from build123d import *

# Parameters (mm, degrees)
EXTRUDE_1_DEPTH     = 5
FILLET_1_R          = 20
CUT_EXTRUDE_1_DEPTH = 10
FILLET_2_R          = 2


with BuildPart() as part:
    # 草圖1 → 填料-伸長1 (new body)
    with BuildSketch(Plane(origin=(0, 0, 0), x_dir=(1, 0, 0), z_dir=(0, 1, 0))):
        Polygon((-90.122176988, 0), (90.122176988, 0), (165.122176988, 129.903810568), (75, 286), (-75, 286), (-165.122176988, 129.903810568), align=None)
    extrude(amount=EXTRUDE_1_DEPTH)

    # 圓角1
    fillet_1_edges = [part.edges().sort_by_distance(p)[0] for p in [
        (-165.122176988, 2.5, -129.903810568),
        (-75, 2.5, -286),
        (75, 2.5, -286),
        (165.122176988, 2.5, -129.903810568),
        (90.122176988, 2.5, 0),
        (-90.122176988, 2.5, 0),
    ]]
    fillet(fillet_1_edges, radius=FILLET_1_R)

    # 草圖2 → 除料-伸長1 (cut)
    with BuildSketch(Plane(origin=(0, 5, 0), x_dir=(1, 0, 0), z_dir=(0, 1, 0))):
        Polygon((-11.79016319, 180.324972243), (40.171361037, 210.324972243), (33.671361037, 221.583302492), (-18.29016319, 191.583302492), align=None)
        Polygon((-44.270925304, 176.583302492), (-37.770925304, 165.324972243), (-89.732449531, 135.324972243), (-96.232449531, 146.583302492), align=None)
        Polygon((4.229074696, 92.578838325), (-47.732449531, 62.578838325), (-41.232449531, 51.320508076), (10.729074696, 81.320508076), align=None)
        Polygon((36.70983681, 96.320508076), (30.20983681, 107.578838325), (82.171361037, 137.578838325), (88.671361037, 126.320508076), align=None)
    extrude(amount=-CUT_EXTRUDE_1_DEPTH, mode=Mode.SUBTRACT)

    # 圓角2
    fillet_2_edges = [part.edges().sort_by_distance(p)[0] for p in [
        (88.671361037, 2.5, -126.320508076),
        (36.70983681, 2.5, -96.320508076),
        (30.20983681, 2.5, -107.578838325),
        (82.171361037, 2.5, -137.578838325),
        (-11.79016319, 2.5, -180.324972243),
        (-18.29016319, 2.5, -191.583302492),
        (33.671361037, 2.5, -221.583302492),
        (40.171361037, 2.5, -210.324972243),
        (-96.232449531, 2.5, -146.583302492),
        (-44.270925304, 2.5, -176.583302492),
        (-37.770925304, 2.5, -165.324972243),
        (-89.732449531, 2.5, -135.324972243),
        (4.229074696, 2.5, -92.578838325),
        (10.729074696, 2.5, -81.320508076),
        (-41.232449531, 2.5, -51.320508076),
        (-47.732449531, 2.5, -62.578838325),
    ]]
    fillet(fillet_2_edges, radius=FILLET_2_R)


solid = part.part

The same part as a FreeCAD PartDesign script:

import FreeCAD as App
import Part
import Sketcher
from FreeCAD import Vector
Q = App.Units.Quantity


def edges_at(feature, points):
    """Names of the edges that pass closest to the given points."""
    edges = feature.Shape.Edges
    near = lambda p: min(range(len(edges)), key=lambda i: edges[i].distToShape(Part.Vertex(*p))[0])
    return sorted({f"Edge{near(p) + 1}" for p in points})

doc = App.newDocument("Part")
body = doc.addObject("PartDesign::Body", "Body")

# Sketch on XZ plane
sketch1 = body.newObject("Sketcher::SketchObject", "Sketch")
sketch1.AttachmentSupport = (doc.getObject("XZ_Plane"), [""])
sketch1.MapMode = "FlatFace"
sketch1.addGeometry([
    Part.LineSegment(Vector(-90.122177, 0, 0), Vector(90.122177, 0, 0)),  # 0
    Part.LineSegment(Vector(90.122177, 0, 0), Vector(165.122177, -129.903811, 0)),  # 1
    Part.LineSegment(Vector(165.122177, -129.903811, 0), Vector(75, -286, 0)),  # 2
    Part.LineSegment(Vector(75, -286, 0), Vector(-75, -286, 0)),  # 3
    Part.LineSegment(Vector(-75, -286, 0), Vector(-165.122177, -129.903811, 0)),  # 4
    Part.LineSegment(Vector(-165.122177, -129.903811, 0), Vector(-90.122177, 0, 0)),  # 5
], False)
sketch1.addConstraint([
    Sketcher.Constraint("Coincident", 0, 2, 1, 1),
    Sketcher.Constraint("Coincident", 1, 2, 2, 1),
    Sketcher.Constraint("Coincident", 2, 2, 3, 1),
    Sketcher.Constraint("Coincident", 3, 2, 4, 1),
    Sketcher.Constraint("Coincident", 4, 2, 5, 1),
    Sketcher.Constraint("Coincident", 5, 2, 0, 1),
    Sketcher.Constraint("Horizontal", 0),
    Sketcher.Constraint("Horizontal", 3),
    Sketcher.Constraint("Symmetric", 0, 2, 5, 2, -1, 1),
    Sketcher.Constraint("Symmetric", 1, 2, 4, 2, -2),
    Sketcher.Constraint("Parallel", 1, 4),
    Sketcher.Constraint("Parallel", 2, 5),
    Sketcher.Constraint("DistanceX", 3, 2, 3, 1, 150.0),
    Sketcher.Constraint("Angle", 1, Q("-60 deg")),
    Sketcher.Constraint("Distance", 1, 150.0),
    Sketcher.Constraint("DistanceY", 2, 2, -1, 1, 286.0),
])
pad1 = body.newObject("PartDesign::Pad", "Pad")
pad1.Profile = sketch1
pad1.Length = 5
pad1.Reversed = True
doc.recompute()

fillet = body.newObject("PartDesign::Fillet", "Fillet")
fillet.Base = (pad1, edges_at(pad1, [
    (-165.122, 2.5, -129.904),
    (-75, 2.5, -286),
    (75, 2.5, -286),
    (165.122, 2.5, -129.904),
    (90.122, 2.5, 0),
    (-90.122, 2.5, 0),
]))
fillet.Radius = 20

# Sketch on XZ plane
sketch2 = body.newObject("Sketcher::SketchObject", "Sketch001")
sketch2.AttachmentSupport = (doc.getObject("XZ_Plane"), [""])
sketch2.MapMode = "FlatFace"
sketch2.AttachmentOffset = App.Placement(Vector(0, 0, -5), App.Rotation())
sketch2.addGeometry([
    Part.LineSegment(Vector(-11.790163, -180.324972, 0), Vector(40.171361, -210.324972, 0)),  # 0
    Part.LineSegment(Vector(40.171361, -210.324972, 0), Vector(33.671361, -221.583302, 0)),  # 1
    Part.LineSegment(Vector(33.671361, -221.583302, 0), Vector(-18.290163, -191.583302, 0)),  # 2
    Part.LineSegment(Vector(-18.290163, -191.583302, 0), Vector(-11.790163, -180.324972, 0)),  # 3
    Part.LineSegment(Vector(-37.770925, -165.324972, 0), Vector(-44.270925, -176.583302, 0)),  # 4
    Part.LineSegment(Vector(-44.270925, -176.583302, 0), Vector(-96.23245, -146.583302, 0)),  # 5
    Part.LineSegment(Vector(-96.23245, -146.583302, 0), Vector(-89.73245, -135.324972, 0)),  # 6
    Part.LineSegment(Vector(-89.73245, -135.324972, 0), Vector(-37.770925, -165.324972, 0)),  # 7
    Part.LineSegment(Vector(4.229075, -92.578838, 0), Vector(-47.73245, -62.578838, 0)),  # 8
    Part.LineSegment(Vector(-47.73245, -62.578838, 0), Vector(-41.23245, -51.320508, 0)),  # 9
    Part.LineSegment(Vector(-41.23245, -51.320508, 0), Vector(10.729075, -81.320508, 0)),  # 10
    Part.LineSegment(Vector(10.729075, -81.320508, 0), Vector(4.229075, -92.578838, 0)),  # 11
    Part.LineSegment(Vector(30.209837, -107.578838, 0), Vector(36.709837, -96.320508, 0)),  # 12
    Part.LineSegment(Vector(36.709837, -96.320508, 0), Vector(88.671361, -126.320508, 0)),  # 13
    Part.LineSegment(Vector(88.671361, -126.320508, 0), Vector(82.171361, -137.578838, 0)),  # 14
    Part.LineSegment(Vector(82.171361, -137.578838, 0), Vector(30.209837, -107.578838, 0)),  # 15
], False)
sketch2.addConstraint([
    Sketcher.Constraint("Coincident", 0, 2, 1, 1),
    Sketcher.Constraint("Coincident", 1, 2, 2, 1),
    Sketcher.Constraint("Coincident", 2, 2, 3, 1),
    Sketcher.Constraint("Coincident", 3, 2, 0, 1),
    Sketcher.Constraint("Coincident", 4, 2, 5, 1),
    Sketcher.Constraint("Coincident", 5, 2, 6, 1),
    Sketcher.Constraint("Coincident", 6, 2, 7, 1),
    Sketcher.Constraint("Coincident", 7, 2, 4, 1),
    Sketcher.Constraint("Coincident", 8, 2, 9, 1),
    Sketcher.Constraint("Coincident", 9, 2, 10, 1),
    Sketcher.Constraint("Coincident", 10, 2, 11, 1),
    Sketcher.Constraint("Coincident", 11, 2, 8, 1),
    Sketcher.Constraint("Coincident", 12, 2, 13, 1),
    Sketcher.Constraint("Coincident", 13, 2, 14, 1),
    Sketcher.Constraint("Coincident", 14, 2, 15, 1),
    Sketcher.Constraint("Coincident", 15, 2, 12, 1),
    Sketcher.Constraint("Perpendicular", 0, 1),
    Sketcher.Constraint("Perpendicular", 1, 2),
    Sketcher.Constraint("Perpendicular", 2, 3),
    Sketcher.Constraint("Parallel", 3, 4),
    Sketcher.Constraint("Perpendicular", 4, 5),
    Sketcher.Constraint("Perpendicular", 5, 6),
    Sketcher.Constraint("Perpendicular", 6, 7),
    Sketcher.Constraint("Parallel", 7, 8),
    Sketcher.Constraint("Perpendicular", 8, 9),
    Sketcher.Constraint("Perpendicular", 9, 10),
    Sketcher.Constraint("Perpendicular", 10, 11),
    Sketcher.Constraint("Parallel", 11, 12),
    Sketcher.Constraint("Perpendicular", 12, 13),
    Sketcher.Constraint("Perpendicular", 13, 14),
    Sketcher.Constraint("Perpendicular", 14, 15),
    Sketcher.Constraint("Equal", 3, 4),
    Sketcher.Constraint("Equal", 2, 5),
    Sketcher.Constraint("Equal", 7, 8),
    Sketcher.Constraint("Equal", 6, 9),
    Sketcher.Constraint("Equal", 11, 12),
    Sketcher.Constraint("Equal", 10, 13),
    Sketcher.Constraint("Angle", 0, Q("-30 deg")),
    Sketcher.Constraint("Distance", 0, 60.0),
    Sketcher.Constraint("Distance", 1, 13.0),
    Sketcher.Constraint("DistanceY", 2, 2, 4, 2, 15.0),
    Sketcher.Constraint("DistanceX", 6, 2, 8, 2, 42.0),
    Sketcher.Constraint("DistanceY", 12, 2, 10, 2, 15.0),
    Sketcher.Constraint("DistanceX", 1, 2, 13, 2, 55.0),
    Sketcher.Constraint("DistanceX", -1, 1, 0, 2, 40.171361),
    Sketcher.Constraint("DistanceX", 5, 2, -1, 1, 96.23245),
    Sketcher.Constraint("DistanceY", 8, 2, -1, 1, 62.578838),
    Sketcher.Constraint("DistanceY", 0, 2, -1, 1, 210.324972),
])
pocket1 = body.newObject("PartDesign::Pocket", "Pocket")
pocket1.Profile = sketch2
pocket1.Length = 10
pocket1.Reversed = True
doc.recompute()

fillet2 = body.newObject("PartDesign::Fillet", "Fillet001")
fillet2.Base = (pocket1, edges_at(pocket1, [
    (88.671, 2.5, -126.321),
    (36.71, 2.5, -96.321),
    (30.21, 2.5, -107.579),
    (82.171, 2.5, -137.579),
    (-11.79, 2.5, -180.325),
    (-18.29, 2.5, -191.583),
    (33.671, 2.5, -221.583),
    (40.171, 2.5, -210.325),
    (-96.232, 2.5, -146.583),
    (-44.271, 2.5, -176.583),
    (-37.771, 2.5, -165.325),
    (-89.732, 2.5, -135.325),
    (4.229, 2.5, -92.579),
    (10.729, 2.5, -81.321),
    (-41.232, 2.5, -51.321),
    (-47.732, 2.5, -62.579),
]))
fillet2.Radius = 2

doc.recompute()
